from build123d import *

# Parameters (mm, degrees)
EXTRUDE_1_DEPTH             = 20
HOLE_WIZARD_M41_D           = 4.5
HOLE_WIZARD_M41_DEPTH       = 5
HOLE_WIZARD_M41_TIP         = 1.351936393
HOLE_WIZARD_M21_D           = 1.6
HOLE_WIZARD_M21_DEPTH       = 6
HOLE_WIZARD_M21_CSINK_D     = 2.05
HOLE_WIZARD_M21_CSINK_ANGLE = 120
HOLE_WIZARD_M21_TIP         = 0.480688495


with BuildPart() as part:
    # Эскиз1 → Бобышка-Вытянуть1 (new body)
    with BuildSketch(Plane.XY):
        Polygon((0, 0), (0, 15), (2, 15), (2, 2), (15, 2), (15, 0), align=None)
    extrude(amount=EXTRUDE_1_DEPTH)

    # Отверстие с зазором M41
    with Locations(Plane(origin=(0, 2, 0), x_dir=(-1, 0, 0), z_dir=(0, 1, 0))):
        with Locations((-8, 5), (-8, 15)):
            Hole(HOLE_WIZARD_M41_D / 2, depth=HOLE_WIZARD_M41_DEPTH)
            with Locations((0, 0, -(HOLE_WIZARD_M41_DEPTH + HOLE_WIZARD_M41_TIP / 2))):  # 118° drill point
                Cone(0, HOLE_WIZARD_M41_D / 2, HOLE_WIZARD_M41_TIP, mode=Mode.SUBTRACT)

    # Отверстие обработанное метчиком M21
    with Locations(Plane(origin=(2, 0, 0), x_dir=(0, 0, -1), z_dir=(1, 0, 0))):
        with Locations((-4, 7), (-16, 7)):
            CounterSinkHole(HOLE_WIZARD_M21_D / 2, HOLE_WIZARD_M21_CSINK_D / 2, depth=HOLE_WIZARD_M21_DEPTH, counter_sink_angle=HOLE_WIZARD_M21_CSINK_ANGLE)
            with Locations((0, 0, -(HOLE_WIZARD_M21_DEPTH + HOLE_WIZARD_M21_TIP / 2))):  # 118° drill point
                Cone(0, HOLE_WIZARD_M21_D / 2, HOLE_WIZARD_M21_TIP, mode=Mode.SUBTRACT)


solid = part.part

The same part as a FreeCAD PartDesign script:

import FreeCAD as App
import Part
import Sketcher

V = App.Vector
Q = App.Units.Quantity

doc = App.newDocument("Part")
params = doc.addObject("Spreadsheet::Sheet", "Params")
for row, (alias, value) in enumerate([
    ("sketch1_width", "15 mm"),
    ("sketch1_width2", "13 mm"),
    ("pad1_length", "20 mm"),
    ("sketch2_diameter", "4.5 mm"),
    ("hole_diameter", "4.5 mm"),
    ("hole_depth", "5 mm"),
    ("sketch3_diameter", "1.6 mm"),
    ("hole2_diameter", "1.6 mm"),
    ("hole2_depth", "6 mm"),
    ("hole2_csink_diameter", "2.05 mm"),
], start=1):
    params.set(f"A{row}", alias)
    params.set(f"B{row}", "=" + value)
    params.setAlias(f"B{row}", alias)

body = doc.addObject("PartDesign::Body", "Body")

# Sketch on XY plane
sketch1 = body.newObject("Sketcher::SketchObject", "Sketch")
sketch1.AttachmentSupport = (doc.getObject("XY_Plane"), [""])
sketch1.MapMode = "FlatFace"
sketch1.addGeometry([
    Part.LineSegment(V(0, 15, 0), V(0, 0, 0)),  # 0
    Part.LineSegment(V(0, 0, 0), V(15, 0, 0)),  # 1
    Part.LineSegment(V(15, 0, 0), V(15, 2, 0)),  # 2
    Part.LineSegment(V(15, 2, 0), V(2, 2, 0)),  # 3
    Part.LineSegment(V(2, 2, 0), V(2, 15, 0)),  # 4
    Part.LineSegment(V(2, 15, 0), V(0, 15, 0)),  # 5
], False)
sketch1.addConstraint([
    Sketcher.Constraint("Coincident", 0, 2, 1, 1),
    Sketcher.Constraint("Coincident", 1, 2, 2, 1),
    Sketcher.Constraint("Coincident", 2, 2, 3, 1),
    Sketcher.Constraint("Coincident", 3, 2, 4, 1),
    Sketcher.Constraint("Coincident", 4, 2, 5, 1),
    Sketcher.Constraint("Coincident", 5, 2, 0, 1),
    Sketcher.Constraint("Vertical", 0),
    Sketcher.Constraint("Horizontal", 1),
    Sketcher.Constraint("Vertical", 2),
    Sketcher.Constraint("Horizontal", 3),
    Sketcher.Constraint("Vertical", 4),
    Sketcher.Constraint("Horizontal", 5),
    Sketcher.Constraint("Coincident", 0, 2, -1, 1),
    Sketcher.Constraint("Equal", 1, 0),
    Sketcher.Constraint("Equal", 5, 2),
    Sketcher.Constraint("DistanceX", 1, 1, 1, 2, Q("15 mm")),
    Sketcher.Constraint("DistanceX", 3, 2, 3, 1, Q("13 mm")),
])
sketch1.setExpression("Constraints[15]", "Params.sketch1_width")
sketch1.setExpression("Constraints[16]", "Params.sketch1_width2")
pad1 = body.newObject("PartDesign::Pad", "Pad")
pad1.Profile = sketch1
pad1.setExpression("Length", "Params.pad1_length")

# Sketch on XZ plane
sketch2 = body.newObject("Sketcher::SketchObject", "Sketch001")
sketch2.AttachmentSupport = (doc.getObject("XZ_Plane"), [""])
sketch2.MapMode = "FlatFace"
sketch2.AttachmentOffset = App.Placement(V(0, 0, -2), App.Rotation())
sketch2.addGeometry([
    Part.Circle(V(8, 5, 0), V(0, 0, 1), 2.2),
    Part.Circle(V(8, 15, 0), V(0, 0, 1), 2.2),
], False)
sketch2.addConstraint([
    Sketcher.Constraint("Equal", 0, 1),
    Sketcher.Constraint("Vertical", 0, 3, 1, 3),
    Sketcher.Constraint("Diameter", 0, Q("4.5 mm")),
    Sketcher.Constraint("DistanceX", -1, 1, 0, 3, Q("8 mm")),
    Sketcher.Constraint("DistanceY", -1, 1, 0, 3, Q("5 mm")),
    Sketcher.Constraint("DistanceY", -1, 1, 1, 3, Q("15 mm")),
])
sketch2.setExpression("Constraints[2]", "Params.sketch2_diameter")
doc.recompute()
hole = body.newObject("PartDesign::Hole", "Hole")
hole.Profile = sketch2
hole.ThreadType = "None"
hole.setExpression("Diameter", "Params.hole_diameter")
hole.DepthType = "Dimension"
hole.setExpression("Depth", "Params.hole_depth")
hole.DrillPoint = "Angled"
hole.DrillPointAngle = 118
hole.Reversed = True

# Sketch on YZ plane
sketch3 = body.newObject("Sketcher::SketchObject", "Sketch002")
sketch3.AttachmentSupport = (doc.getObject("YZ_Plane"), [""])
sketch3.MapMode = "FlatFace"
sketch3.AttachmentOffset = App.Placement(V(0, 0, 2), App.Rotation())
sketch3.addGeometry([
    Part.Circle(V(7, 4, 0), V(0, 0, 1), 0.8),
    Part.Circle(V(7, 16, 0), V(0, 0, 1), 0.8),
], False)
sketch3.addConstraint([
    Sketcher.Constraint("Equal", 0, 1),
    Sketcher.Constraint("Vertical", 0, 3, 1, 3),
    Sketcher.Constraint("Diameter", 0, Q("1.6 mm")),
    Sketcher.Constraint("DistanceX", -1, 1, 0, 3, Q("7 mm")),
    Sketcher.Constraint("DistanceY", -1, 1, 0, 3, Q("4 mm")),
    Sketcher.Constraint("DistanceY", -1, 1, 1, 3, Q("16 mm")),
])
sketch3.setExpression("Constraints[2]", "Params.sketch3_diameter")
doc.recompute()
hole2 = body.newObject("PartDesign::Hole", "Hole001")
hole2.Profile = sketch3
hole2.ThreadType = "None"
hole2.setExpression("Diameter", "Params.hole2_diameter")
hole2.DepthType = "Dimension"
hole2.setExpression("Depth", "Params.hole2_depth")
hole2.DrillPoint = "Angled"
hole2.DrillPointAngle = 118
hole2.HoleCutType = "Countersink"
hole2.setExpression("HoleCutDiameter", "Params.hole2_csink_diameter")
hole2.HoleCutCountersinkAngle = 120

doc.recompute()
